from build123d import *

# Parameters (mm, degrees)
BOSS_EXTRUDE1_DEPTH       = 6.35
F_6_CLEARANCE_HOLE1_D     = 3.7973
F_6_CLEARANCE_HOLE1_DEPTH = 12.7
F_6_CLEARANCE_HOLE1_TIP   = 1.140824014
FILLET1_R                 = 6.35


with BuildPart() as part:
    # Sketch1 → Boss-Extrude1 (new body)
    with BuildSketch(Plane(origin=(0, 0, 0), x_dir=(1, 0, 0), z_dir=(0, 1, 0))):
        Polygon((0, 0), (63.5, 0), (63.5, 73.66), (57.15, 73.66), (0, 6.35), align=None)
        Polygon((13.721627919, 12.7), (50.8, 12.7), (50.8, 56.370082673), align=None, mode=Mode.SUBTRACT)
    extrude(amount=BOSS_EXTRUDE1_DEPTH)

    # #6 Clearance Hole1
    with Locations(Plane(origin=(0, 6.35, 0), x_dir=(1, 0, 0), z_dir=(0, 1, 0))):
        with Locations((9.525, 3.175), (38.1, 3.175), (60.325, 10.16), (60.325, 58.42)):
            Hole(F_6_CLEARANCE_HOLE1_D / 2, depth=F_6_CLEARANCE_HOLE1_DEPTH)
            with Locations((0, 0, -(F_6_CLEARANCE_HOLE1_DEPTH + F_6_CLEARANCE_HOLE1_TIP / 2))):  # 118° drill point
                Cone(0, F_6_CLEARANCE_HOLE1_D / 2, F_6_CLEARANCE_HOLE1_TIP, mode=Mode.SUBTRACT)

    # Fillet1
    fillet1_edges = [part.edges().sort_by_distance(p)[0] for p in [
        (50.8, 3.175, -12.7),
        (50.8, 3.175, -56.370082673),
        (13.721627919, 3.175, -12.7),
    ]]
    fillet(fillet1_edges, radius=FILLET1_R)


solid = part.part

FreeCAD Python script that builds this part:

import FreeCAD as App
import Part
import Sketcher
Q = App.Units.Quantity


def edges_at(feature, points):
    """Names of the edges that pass closest to the given points."""
    edges = feature.Shape.Edges
    near = lambda p: min(range(len(edges)), key=lambda i: edges[i].distToShape(Part.Vertex(*p))[0])
    return sorted({f"Edge{near(p) + 1}" for p in points})


def add_polygon(sketch, points):
    """Adds a closed chain of lines whose ends are joined by coincident constraints."""
    first, n = sketch.GeometryCount, len(points)
    for a, b in zip(points, points[1:] + points[:1]):
        sketch.addGeometry(Part.LineSegment(App.Vector(*a, 0), App.Vector(*b, 0)), False)
    for i in range(n):
        sketch.addConstraint(Sketcher.Constraint("Coincident", first + i, 2, first + (i + 1) % n, 1))

doc = App.newDocument("Part")
body = doc.addObject("PartDesign::Body", "Body")

sketch1 = doc.addObject("Sketcher::SketchObject", "Sketch")
body.addObject(sketch1)
sketch1.AttachmentSupport = (doc.XZ_Plane, [""])
sketch1.MapMode = "FlatFace"
add_polygon(sketch1, [(0, 0), (64, 0), (64, -74), (57, -74), (0, -6)])
add_polygon(sketch1, [(51, -13), (14, -13), (51, -56)])
sketch1.addConstraint([
    Sketcher.Constraint("Horizontal", 0),
    Sketcher.Constraint("Vertical", 1),
    Sketcher.Constraint("Horizontal", 2),
    Sketcher.Constraint("Vertical", 4),
    Sketcher.Constraint("Horizontal", 5),
    Sketcher.Constraint("Vertical", 7),
    Sketcher.Constraint("Coincident", 4, 2, -1, 1),
    Sketcher.Constraint("Parallel", 3, 6),
    Sketcher.Constraint("Equal", 2, 4),
    Sketcher.Constraint("DistanceX", 0, 1, 0, 2, Q("2.5 in")),
    Sketcher.Constraint("DistanceY", 1, 2, 1, 1, Q("2.9 in")),
    Sketcher.Constraint("DistanceX", -1, 1, 6, 2, Q("2 in")),
    Sketcher.Constraint("DistanceX", 2, 2, 2, 1, Q("0.25 in")),
    Sketcher.Constraint("DistanceY", 5, 2, -1, 1, Q("0.5 in")),
    Sketcher.Constraint("Distance", 6, 57.287711),
])
pad1 = doc.addObject("PartDesign::Pad", "Pad")
body.addObject(pad1)
pad1.Profile = sketch1
pad1.Length = Q("0.25 in")
pad1.Reversed = True

sketch2 = doc.addObject("Sketcher::SketchObject", "Sketch001")
body.addObject(sketch2)
sketch2.AttachmentSupport = (doc.XZ_Plane, [""])
sketch2.MapMode = "FlatFace"
sketch2.AttachmentOffset = App.Placement(App.Vector(0, 0, -0.25 * 25.4), App.Rotation())
sketch2.addGeometry([
    Part.Circle(App.Vector(9.5, -3.2, 0), App.Vector(0, 0, 1), 1.9),
    Part.Circle(App.Vector(38.1, -3.2, 0), App.Vector(0, 0, 1), 1.9),
    Part.Circle(App.Vector(60.3, -10.2, 0), App.Vector(0, 0, 1), 1.9),
    Part.Circle(App.Vector(60.3, -58.4, 0), App.Vector(0, 0, 1), 1.9),
], False)
sketch2.addConstraint([
    Sketcher.Constraint("Equal", 0, 1),
    Sketcher.Constraint("Equal", 1, 2),
    Sketcher.Constraint("Equal", 2, 3),
    Sketcher.Constraint("Horizontal", 0, 3, 1, 3),
    Sketcher.Constraint("Vertical", 2, 3, 3, 3),
    Sketcher.Constraint("DistanceX", 0, 3, 2, 3, Q("2 in")),
    Sketcher.Constraint("Diameter", 0, Q("0.1495 in")),
    Sketcher.Constraint("DistanceX", -1, 1, 1, 3, Q("1.5 in")),
    Sketcher.Constraint("DistanceY", 2, 3, -1, 1, Q("0.4 in")),
    Sketcher.Constraint("DistanceY", 3, 3, -1, 1, Q("2.3 in")),
    Sketcher.Constraint("DistanceX", -1, 1, 0, 3, Q("0.375 in")),
    Sketcher.Constraint("DistanceY", 0, 3, -1, 1, Q("0.125 in")),
])
doc.recompute()
hole = doc.addObject("PartDesign::Hole", "Hole")
body.addObject(hole)
hole.Profile = sketch2
hole.ThreadType = "None"
hole.Diameter = Q("0.1495 in")
hole.DepthType = "Dimension"
hole.Depth = Q("0.5 in")
hole.DrillPoint = "Angled"
hole.DrillPointAngle = 118
hole.Reversed = True
doc.recompute()

fillet = doc.addObject("PartDesign::Fillet", "Fillet")
body.addObject(fillet)
fillet.Base = (hole, edges_at(hole, [(50.8, 3.175, -12.7), (50.8, 3.175, -56.37), (13.722, 3.175, -12.7)]))
fillet.Radius = Q("0.25 in")

doc.recompute()
